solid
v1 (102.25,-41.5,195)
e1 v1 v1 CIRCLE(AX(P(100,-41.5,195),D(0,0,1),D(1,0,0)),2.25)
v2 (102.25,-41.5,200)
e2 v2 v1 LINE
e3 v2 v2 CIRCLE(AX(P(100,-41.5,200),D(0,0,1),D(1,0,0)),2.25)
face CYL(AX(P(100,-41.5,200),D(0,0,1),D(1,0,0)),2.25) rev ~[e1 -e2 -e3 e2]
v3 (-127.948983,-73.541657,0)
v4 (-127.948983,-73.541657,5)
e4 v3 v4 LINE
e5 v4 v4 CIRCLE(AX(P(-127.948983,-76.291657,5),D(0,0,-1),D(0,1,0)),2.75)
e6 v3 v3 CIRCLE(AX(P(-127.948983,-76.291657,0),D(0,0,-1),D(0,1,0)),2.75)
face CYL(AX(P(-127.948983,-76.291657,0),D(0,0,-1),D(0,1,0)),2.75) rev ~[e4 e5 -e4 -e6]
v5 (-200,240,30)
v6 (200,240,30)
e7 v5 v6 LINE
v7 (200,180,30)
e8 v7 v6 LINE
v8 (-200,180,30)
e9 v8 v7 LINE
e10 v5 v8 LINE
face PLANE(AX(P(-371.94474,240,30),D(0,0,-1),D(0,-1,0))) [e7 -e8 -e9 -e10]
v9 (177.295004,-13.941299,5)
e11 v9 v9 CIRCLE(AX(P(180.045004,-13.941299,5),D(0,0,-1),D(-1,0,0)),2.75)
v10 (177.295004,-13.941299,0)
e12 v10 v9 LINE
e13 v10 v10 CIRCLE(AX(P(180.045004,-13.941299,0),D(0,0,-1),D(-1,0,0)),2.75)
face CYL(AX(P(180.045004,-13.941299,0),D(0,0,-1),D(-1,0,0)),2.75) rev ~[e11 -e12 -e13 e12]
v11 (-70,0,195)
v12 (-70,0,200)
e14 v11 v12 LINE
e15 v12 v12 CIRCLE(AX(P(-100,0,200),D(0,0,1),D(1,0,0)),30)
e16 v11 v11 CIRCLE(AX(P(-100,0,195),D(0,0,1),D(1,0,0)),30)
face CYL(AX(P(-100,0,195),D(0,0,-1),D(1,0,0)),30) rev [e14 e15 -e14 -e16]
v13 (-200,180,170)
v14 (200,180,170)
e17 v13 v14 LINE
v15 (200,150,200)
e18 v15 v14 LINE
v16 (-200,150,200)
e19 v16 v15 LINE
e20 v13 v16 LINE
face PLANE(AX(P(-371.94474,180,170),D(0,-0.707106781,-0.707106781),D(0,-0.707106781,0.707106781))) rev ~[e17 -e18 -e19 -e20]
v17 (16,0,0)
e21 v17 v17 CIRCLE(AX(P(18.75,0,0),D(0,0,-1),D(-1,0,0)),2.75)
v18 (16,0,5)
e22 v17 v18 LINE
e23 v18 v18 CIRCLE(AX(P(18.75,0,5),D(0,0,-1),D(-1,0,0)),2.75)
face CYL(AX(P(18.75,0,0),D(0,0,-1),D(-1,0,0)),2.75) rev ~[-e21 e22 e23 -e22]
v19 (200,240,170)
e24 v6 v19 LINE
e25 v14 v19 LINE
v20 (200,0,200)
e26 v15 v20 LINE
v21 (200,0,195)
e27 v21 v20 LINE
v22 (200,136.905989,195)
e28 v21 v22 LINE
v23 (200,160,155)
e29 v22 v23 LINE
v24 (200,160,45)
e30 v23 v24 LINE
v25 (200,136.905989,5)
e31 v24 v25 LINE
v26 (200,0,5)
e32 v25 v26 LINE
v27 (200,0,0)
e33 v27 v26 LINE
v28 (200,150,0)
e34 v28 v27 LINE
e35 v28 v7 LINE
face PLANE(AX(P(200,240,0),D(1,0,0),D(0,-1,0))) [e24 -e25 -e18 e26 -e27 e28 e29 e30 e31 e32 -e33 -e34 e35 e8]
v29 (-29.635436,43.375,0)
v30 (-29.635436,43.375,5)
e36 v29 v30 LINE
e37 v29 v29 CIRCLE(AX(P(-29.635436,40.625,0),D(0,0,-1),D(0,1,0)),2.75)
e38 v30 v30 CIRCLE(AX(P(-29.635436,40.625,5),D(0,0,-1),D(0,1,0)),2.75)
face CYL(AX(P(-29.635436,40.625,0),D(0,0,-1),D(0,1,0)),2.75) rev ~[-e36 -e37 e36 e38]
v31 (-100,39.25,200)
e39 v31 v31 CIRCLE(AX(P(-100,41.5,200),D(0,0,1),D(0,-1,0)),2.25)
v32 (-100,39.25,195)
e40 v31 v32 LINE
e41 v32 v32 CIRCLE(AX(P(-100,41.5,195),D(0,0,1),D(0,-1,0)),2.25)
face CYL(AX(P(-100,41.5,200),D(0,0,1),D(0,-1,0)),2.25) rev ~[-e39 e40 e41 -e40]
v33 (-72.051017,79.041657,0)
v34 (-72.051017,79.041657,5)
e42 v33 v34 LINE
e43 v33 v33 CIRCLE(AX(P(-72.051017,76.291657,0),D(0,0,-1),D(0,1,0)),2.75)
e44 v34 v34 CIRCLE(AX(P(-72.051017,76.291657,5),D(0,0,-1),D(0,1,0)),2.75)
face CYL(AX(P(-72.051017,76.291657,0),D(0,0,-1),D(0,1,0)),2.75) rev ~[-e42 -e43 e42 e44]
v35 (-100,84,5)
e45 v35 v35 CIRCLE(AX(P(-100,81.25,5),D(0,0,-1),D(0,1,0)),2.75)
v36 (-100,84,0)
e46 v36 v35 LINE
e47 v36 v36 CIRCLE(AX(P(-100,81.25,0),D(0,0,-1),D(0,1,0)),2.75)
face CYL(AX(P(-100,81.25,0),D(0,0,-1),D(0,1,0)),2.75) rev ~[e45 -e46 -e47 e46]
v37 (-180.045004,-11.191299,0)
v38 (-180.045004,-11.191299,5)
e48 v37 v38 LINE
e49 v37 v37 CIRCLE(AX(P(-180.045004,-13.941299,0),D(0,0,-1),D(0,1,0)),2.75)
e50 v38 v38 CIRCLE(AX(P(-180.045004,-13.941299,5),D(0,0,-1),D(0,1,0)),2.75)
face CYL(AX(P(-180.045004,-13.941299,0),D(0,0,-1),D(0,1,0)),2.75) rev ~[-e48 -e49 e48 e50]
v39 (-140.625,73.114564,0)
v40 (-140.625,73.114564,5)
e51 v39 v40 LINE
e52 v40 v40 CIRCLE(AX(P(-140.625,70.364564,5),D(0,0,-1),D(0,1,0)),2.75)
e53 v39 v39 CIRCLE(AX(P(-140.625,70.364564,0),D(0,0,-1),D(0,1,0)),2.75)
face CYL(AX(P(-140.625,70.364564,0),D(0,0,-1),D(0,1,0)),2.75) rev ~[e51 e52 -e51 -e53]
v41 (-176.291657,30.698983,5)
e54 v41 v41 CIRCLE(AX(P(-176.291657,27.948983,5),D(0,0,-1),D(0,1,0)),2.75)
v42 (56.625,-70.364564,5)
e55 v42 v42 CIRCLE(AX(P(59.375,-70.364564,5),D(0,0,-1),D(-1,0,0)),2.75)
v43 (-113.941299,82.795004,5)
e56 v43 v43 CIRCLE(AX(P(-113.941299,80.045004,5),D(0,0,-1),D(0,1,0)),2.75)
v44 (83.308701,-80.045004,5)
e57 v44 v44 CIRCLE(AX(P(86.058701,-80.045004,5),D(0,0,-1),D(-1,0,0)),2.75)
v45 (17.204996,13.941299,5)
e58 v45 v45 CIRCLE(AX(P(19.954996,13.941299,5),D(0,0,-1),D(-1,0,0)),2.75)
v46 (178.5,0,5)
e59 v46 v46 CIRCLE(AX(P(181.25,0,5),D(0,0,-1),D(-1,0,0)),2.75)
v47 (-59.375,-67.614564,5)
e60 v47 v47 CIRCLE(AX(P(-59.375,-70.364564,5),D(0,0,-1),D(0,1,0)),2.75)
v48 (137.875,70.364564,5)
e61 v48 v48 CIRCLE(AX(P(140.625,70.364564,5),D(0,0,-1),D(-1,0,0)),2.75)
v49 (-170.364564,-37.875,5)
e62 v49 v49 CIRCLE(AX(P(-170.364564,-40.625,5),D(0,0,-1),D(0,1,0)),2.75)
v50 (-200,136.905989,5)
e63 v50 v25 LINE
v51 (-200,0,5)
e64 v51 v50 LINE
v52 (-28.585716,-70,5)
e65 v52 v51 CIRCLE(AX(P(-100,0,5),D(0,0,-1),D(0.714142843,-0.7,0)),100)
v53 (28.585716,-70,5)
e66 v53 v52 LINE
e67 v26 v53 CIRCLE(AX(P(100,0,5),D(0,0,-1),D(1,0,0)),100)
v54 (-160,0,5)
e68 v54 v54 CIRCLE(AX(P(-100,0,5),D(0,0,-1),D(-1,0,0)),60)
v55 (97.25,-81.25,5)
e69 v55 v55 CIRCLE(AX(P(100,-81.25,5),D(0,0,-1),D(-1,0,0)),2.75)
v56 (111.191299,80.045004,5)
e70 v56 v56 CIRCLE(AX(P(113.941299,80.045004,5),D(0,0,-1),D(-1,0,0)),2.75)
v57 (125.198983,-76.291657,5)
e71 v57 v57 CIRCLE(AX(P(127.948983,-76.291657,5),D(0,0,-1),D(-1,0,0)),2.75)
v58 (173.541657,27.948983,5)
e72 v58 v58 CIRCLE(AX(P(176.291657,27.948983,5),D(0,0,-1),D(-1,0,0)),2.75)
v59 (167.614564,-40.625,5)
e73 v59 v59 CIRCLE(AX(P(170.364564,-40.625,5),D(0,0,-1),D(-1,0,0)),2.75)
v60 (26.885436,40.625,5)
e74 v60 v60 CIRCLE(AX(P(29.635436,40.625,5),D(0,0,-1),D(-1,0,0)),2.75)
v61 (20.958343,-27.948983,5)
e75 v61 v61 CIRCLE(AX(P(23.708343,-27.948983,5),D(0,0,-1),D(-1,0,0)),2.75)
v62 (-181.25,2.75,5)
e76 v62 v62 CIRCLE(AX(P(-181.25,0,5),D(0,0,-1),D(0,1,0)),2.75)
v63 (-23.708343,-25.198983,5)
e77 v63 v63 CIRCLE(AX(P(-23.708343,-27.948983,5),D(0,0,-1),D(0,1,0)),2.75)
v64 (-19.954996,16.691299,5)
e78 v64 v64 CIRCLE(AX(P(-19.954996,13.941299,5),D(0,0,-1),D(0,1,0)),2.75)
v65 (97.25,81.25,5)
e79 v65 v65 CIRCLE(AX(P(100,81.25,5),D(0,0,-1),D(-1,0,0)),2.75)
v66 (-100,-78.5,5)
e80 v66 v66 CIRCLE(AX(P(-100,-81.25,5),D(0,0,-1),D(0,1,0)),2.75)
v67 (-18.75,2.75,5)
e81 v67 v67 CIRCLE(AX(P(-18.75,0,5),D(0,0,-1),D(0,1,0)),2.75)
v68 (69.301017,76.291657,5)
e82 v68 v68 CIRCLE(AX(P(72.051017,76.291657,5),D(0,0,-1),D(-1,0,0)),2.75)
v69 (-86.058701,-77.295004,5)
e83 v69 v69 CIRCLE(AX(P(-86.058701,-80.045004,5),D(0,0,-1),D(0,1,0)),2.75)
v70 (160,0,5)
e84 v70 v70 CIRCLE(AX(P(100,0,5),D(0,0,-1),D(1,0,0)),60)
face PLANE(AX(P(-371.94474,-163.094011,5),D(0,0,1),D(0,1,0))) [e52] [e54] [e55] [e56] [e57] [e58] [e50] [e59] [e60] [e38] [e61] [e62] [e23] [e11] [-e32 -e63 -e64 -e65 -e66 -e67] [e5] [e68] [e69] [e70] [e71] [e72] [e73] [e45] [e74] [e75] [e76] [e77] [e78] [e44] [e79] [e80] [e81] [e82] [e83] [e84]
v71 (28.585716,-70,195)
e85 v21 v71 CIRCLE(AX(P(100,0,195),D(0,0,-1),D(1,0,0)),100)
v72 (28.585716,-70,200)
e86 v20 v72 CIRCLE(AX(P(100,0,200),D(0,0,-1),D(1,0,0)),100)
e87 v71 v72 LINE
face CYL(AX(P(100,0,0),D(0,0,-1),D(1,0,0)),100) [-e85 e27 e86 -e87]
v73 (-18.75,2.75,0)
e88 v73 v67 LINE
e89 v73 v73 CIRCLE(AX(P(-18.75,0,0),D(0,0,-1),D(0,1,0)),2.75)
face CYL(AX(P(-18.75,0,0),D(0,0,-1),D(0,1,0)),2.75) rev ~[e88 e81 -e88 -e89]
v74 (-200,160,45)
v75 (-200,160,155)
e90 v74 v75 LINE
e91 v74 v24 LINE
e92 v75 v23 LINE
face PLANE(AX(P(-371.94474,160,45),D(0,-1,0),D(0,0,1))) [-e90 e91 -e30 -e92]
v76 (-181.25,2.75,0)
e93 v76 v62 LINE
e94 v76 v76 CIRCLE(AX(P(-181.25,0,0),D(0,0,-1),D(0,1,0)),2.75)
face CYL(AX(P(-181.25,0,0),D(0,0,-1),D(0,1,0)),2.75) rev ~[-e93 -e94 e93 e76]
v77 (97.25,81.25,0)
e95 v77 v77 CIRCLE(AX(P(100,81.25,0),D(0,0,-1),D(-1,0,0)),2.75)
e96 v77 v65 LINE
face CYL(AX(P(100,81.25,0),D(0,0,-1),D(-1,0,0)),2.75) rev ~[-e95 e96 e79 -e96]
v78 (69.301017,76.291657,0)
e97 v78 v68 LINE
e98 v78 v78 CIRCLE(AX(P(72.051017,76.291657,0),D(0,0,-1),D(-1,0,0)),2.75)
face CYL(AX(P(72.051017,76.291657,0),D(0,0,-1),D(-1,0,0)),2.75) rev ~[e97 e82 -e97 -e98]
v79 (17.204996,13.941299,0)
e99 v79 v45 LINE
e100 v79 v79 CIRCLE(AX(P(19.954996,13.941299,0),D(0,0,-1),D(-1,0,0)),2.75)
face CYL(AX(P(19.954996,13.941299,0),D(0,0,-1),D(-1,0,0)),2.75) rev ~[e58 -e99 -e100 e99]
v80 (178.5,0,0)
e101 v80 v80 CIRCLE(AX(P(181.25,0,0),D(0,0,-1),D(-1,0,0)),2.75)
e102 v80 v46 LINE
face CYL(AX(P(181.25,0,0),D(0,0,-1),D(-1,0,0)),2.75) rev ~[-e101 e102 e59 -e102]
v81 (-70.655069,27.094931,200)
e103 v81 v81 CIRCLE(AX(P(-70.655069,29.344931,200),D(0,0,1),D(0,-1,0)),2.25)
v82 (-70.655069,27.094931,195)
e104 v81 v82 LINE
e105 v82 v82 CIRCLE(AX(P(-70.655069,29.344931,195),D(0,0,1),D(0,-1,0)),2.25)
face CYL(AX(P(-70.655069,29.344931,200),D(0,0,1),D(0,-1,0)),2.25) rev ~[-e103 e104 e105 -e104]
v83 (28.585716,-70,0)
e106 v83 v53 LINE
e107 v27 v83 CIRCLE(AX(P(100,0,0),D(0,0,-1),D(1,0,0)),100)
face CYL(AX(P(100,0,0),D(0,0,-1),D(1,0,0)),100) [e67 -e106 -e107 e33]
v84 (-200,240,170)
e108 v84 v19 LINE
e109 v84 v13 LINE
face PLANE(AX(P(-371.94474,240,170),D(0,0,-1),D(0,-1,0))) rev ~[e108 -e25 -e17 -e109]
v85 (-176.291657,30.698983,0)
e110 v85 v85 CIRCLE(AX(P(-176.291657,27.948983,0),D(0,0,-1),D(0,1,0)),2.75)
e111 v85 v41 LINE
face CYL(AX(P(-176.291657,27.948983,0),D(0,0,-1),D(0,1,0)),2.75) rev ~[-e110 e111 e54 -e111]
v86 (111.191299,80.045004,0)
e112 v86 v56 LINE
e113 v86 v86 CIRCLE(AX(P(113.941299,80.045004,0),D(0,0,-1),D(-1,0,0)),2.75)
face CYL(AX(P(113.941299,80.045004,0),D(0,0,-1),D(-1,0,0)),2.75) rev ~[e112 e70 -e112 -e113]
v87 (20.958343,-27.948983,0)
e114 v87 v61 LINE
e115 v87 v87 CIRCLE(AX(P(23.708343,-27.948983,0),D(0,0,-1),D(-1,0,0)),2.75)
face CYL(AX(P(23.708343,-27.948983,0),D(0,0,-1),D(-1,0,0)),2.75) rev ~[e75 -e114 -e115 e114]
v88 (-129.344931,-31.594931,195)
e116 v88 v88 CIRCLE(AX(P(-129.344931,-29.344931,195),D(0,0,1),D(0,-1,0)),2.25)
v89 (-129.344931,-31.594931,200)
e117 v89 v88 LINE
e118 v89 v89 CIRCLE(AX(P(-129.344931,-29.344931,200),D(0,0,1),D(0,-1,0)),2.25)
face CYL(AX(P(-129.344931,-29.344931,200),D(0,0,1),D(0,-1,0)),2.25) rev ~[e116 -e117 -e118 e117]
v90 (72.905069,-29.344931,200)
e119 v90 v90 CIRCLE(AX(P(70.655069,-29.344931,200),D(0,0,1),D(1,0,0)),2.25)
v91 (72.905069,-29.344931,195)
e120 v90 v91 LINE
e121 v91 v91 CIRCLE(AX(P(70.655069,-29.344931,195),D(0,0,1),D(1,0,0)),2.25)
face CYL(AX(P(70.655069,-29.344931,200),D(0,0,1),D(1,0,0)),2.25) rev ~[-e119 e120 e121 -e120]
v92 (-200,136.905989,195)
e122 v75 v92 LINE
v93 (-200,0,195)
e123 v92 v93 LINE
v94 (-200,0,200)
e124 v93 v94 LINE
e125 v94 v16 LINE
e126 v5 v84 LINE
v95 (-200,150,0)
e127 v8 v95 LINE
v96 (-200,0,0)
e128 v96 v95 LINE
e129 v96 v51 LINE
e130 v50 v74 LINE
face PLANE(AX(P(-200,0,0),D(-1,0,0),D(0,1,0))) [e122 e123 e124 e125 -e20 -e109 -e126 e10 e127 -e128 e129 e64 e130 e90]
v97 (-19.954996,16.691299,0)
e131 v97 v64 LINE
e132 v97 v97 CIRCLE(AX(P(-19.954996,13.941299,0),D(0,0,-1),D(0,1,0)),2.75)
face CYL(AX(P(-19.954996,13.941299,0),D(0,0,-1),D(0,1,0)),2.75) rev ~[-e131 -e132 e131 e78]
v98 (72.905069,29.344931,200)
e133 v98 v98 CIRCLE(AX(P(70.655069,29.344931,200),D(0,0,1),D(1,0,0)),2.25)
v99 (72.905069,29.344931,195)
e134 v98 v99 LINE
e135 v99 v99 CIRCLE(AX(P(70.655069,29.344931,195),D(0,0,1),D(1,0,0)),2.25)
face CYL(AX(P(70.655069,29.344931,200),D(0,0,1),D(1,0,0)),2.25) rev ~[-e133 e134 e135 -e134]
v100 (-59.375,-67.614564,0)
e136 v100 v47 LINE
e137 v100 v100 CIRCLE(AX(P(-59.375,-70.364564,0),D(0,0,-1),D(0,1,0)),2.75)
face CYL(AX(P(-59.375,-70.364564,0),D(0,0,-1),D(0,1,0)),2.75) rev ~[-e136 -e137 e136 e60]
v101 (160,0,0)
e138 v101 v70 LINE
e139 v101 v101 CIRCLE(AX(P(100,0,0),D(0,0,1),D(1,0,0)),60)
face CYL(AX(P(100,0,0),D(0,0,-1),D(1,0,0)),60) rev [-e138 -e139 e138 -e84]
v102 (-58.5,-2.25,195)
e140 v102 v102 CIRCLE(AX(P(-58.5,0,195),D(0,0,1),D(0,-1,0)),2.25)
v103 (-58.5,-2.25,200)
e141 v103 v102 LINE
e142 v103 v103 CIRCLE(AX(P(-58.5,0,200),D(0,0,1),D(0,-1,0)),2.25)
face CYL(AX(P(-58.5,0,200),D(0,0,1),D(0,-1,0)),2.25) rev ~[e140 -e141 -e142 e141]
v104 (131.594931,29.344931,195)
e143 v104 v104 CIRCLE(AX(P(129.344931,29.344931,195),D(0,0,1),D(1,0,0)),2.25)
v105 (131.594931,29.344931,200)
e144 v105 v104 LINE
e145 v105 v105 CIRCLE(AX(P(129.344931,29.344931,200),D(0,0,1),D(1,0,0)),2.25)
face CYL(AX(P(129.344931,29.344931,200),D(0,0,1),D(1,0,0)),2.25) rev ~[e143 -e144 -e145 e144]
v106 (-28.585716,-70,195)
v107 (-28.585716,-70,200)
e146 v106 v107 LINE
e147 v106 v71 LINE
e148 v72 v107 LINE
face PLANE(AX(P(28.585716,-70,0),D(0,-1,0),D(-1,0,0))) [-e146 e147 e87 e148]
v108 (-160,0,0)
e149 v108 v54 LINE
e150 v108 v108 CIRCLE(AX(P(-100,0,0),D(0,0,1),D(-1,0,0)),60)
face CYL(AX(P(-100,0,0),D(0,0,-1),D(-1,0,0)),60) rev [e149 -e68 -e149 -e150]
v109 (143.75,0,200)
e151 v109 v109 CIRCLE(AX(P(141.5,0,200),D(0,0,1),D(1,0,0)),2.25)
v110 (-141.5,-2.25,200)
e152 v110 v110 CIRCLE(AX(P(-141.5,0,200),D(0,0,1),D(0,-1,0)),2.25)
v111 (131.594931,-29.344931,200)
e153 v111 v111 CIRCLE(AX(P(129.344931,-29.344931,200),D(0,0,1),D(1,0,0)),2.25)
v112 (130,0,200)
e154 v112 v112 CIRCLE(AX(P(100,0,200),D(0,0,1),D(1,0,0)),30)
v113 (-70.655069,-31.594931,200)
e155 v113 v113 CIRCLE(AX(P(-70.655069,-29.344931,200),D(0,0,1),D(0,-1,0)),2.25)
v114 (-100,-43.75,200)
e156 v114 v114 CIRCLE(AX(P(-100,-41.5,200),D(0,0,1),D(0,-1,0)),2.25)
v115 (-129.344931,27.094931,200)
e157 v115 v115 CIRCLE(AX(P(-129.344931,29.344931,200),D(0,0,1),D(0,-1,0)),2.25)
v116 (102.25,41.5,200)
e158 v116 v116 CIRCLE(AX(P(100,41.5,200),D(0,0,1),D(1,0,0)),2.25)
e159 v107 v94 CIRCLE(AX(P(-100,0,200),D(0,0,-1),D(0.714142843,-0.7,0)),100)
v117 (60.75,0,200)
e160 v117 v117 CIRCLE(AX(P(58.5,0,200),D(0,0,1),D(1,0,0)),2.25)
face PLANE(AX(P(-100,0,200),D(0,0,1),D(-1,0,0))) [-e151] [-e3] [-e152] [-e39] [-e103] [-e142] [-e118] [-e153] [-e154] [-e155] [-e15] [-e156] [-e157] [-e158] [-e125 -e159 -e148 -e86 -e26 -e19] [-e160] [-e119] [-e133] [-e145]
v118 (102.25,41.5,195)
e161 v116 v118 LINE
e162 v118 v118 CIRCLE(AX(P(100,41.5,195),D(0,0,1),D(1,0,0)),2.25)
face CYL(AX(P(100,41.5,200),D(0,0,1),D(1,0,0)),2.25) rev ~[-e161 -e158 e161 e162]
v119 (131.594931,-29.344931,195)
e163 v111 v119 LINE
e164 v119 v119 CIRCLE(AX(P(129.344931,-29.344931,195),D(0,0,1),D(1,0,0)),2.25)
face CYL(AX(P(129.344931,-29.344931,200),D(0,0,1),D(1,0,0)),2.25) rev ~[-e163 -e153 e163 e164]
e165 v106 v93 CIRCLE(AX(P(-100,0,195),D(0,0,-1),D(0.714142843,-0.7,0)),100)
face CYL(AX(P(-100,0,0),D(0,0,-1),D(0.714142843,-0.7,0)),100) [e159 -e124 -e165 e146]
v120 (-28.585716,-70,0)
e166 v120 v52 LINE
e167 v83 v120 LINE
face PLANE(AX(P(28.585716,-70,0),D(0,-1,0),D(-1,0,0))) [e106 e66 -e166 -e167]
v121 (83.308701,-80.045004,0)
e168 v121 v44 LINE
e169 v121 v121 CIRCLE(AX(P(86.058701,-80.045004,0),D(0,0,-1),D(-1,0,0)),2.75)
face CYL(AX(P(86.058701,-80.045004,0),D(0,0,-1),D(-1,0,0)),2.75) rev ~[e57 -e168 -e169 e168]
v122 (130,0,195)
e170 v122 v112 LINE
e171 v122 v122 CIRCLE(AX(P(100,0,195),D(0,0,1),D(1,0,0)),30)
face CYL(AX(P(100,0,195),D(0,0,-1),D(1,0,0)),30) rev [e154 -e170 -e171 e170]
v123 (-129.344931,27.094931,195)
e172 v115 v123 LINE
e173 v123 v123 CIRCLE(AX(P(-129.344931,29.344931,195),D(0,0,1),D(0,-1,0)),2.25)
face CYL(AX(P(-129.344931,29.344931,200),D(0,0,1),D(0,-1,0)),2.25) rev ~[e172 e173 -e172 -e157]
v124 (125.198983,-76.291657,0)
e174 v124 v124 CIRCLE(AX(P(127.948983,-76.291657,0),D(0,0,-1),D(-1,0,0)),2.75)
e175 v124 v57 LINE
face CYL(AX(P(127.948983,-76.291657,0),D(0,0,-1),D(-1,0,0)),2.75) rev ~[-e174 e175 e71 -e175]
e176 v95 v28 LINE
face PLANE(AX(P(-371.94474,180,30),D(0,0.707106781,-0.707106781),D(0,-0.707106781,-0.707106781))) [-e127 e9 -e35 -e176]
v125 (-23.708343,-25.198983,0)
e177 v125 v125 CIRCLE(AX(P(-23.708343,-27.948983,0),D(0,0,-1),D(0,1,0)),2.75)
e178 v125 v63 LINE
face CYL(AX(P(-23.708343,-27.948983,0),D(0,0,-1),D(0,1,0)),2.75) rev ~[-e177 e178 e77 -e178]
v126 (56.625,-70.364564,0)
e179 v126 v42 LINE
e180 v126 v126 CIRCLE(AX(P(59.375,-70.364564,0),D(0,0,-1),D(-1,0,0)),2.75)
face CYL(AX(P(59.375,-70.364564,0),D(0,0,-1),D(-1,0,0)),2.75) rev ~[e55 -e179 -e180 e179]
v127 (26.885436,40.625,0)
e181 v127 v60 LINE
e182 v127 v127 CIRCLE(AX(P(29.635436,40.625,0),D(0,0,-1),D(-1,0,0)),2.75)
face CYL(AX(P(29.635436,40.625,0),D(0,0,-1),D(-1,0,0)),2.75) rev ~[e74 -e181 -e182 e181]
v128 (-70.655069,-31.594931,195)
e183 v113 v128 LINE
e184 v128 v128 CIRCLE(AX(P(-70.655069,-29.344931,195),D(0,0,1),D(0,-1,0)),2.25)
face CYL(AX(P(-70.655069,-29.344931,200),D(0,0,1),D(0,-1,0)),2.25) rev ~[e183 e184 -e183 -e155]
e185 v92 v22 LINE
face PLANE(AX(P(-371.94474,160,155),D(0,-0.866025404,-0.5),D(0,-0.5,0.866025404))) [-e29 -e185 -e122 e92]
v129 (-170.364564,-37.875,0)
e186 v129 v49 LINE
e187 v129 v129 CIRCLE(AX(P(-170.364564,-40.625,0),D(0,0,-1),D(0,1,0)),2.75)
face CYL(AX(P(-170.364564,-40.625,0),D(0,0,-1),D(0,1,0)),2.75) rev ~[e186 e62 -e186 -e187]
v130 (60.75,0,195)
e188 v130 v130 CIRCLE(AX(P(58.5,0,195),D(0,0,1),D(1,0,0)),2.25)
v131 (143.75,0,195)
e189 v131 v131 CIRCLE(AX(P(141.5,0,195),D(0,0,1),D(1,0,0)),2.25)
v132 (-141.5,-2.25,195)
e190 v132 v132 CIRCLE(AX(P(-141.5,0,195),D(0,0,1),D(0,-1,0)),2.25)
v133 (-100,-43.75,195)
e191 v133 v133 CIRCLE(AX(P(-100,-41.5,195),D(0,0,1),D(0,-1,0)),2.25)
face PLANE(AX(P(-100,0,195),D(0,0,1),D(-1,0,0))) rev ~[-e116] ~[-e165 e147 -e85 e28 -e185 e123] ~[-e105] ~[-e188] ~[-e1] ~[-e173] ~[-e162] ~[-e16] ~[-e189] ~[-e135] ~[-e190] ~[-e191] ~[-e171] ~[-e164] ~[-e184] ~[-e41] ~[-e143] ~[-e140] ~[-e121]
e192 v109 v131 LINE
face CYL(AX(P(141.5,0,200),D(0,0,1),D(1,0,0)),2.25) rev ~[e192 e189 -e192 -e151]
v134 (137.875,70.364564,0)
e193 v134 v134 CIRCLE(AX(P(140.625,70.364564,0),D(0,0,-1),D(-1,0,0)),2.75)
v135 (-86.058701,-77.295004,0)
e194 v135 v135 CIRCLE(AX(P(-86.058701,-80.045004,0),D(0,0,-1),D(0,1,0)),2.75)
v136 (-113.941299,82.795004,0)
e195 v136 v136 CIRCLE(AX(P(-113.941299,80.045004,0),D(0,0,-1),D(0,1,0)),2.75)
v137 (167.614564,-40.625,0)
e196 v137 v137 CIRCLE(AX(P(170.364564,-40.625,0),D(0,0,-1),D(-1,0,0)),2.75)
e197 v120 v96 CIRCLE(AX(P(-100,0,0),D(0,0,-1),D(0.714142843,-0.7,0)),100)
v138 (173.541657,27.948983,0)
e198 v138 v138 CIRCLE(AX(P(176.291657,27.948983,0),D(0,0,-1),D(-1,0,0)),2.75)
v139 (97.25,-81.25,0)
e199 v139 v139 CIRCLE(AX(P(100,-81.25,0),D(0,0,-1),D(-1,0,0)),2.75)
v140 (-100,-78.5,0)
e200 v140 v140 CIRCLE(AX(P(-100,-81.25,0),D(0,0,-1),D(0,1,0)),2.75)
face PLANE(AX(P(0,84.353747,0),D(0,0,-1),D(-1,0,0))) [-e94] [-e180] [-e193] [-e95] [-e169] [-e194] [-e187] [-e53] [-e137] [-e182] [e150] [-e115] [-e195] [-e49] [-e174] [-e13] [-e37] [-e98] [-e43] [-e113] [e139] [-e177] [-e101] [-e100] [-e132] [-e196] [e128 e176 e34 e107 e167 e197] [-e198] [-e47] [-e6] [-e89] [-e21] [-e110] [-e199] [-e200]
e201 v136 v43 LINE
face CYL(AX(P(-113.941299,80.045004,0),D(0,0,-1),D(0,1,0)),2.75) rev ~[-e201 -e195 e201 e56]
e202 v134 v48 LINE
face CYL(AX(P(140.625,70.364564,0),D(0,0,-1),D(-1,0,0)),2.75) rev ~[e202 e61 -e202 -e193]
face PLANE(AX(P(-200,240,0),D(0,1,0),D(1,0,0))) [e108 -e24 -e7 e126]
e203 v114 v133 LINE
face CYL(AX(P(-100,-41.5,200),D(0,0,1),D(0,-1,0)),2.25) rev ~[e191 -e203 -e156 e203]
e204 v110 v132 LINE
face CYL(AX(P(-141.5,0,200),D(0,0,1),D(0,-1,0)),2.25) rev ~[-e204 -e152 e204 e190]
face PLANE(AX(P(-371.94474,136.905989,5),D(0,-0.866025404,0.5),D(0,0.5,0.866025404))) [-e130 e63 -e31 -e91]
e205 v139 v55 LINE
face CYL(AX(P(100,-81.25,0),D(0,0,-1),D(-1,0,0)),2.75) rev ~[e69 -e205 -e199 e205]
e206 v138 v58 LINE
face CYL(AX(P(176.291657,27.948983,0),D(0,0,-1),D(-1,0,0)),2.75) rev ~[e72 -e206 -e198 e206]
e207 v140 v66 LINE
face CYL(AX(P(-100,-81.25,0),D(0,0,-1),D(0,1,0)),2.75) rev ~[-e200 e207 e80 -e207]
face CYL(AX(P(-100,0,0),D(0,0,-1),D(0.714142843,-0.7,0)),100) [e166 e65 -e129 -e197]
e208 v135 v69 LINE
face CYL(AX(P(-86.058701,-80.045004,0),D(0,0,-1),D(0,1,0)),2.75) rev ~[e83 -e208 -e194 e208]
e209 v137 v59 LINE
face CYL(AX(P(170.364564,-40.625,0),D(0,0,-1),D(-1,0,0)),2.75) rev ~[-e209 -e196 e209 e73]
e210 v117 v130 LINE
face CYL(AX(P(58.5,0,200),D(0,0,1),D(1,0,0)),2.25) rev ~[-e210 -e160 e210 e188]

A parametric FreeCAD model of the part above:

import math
import FreeCAD as App
import Part
import Sketcher
Q = App.Units.Quantity

doc = App.newDocument("Part")
params = doc.addObject("Spreadsheet::Sheet", "Params")
for row, (alias, value) in enumerate([
    ("sketch1_diameter", "120 mm"),
    ("sketch1_radius", "100 mm"),
    ("sketch1_width", "400 mm"),
    ("sketch1_height", "240 mm"),
    ("pad1_length", "200 mm"),
    ("sketch2_width", "300 mm"),
    ("sketch2_height", "190 mm"),
    ("sketch2_height2", "110 mm"),
    ("sketch3_width", "60 mm"),
    ("sketch3_width2", "90 mm"),
    ("sketch4_diameter", "5.5 mm"),
    ("pocket3_length", "32.5 mm"),
    ("sketch5_diameter", "120 mm"),
    ("sketch5_diameter2", "60 mm"),
    ("pad2_length", "5 mm"),
    ("sketch6_diameter", "4.5 mm"),
    ("pocket4_length", "5 mm"),
], start=1):
    params.set(f"A{row}", alias)
    params.set(f"B{row}", "=" + value)
    params.setAlias(f"B{row}", alias)

body = doc.addObject("PartDesign::Body", "Body")

# Sketch on XY plane
sketch1 = body.newObject("Sketcher::SketchObject", "Sketch")
sketch1.AttachmentSupport = (doc.getObject("XY_Plane"), [""])
sketch1.MapMode = "FlatFace"
sketch1.addGeometry([
    Part.ArcOfCircle(Part.Circle(App.Vector(100, 0, 0), App.Vector(0, 0, 1), 100), math.radians(-135.572996), math.radians(0)),  # 0
    Part.LineSegment(App.Vector(200, 0, 0), App.Vector(200, 240, 0)),  # 1
    Part.LineSegment(App.Vector(200, 240, 0), App.Vector(-200, 240, 0)),  # 2
    Part.LineSegment(App.Vector(-200, 240, 0), App.Vector(-200, 0, 0)),  # 3
    Part.ArcOfCircle(Part.Circle(App.Vector(-100, 0, 0), App.Vector(0, 0, 1), 100), math.radians(180), math.radians(315.572996)),  # 4
    Part.LineSegment(App.Vector(-28.585716, -70, 0), App.Vector(28.585716, -70, 0)),  # 5
    Part.Circle(App.Vector(100, 0, 0), App.Vector(0, 0, 1), 60),  # 6
    Part.Circle(App.Vector(-100, 0, 0), App.Vector(0, 0, 1), 60),  # 7
], False)
sketch1.addConstraint([
    Sketcher.Constraint("Tangent", 0, 2, 1, 1),
    Sketcher.Constraint("Coincident", 1, 2, 2, 1),
    Sketcher.Constraint("Coincident", 2, 2, 3, 1),
    Sketcher.Constraint("Tangent", 3, 2, 4, 1),
    Sketcher.Constraint("Coincident", 4, 2, 5, 1),
    Sketcher.Constraint("Coincident", 5, 2, 0, 1),
    Sketcher.Constraint("Vertical", 1),
    Sketcher.Constraint("Horizontal", 2),
    Sketcher.Constraint("Vertical", 3),
    Sketcher.Constraint("Horizontal", 5),
    Sketcher.Constraint("Coincident", 6, 3, 0, 3),
    Sketcher.Constraint("Coincident", 7, 3, 4, 3),
    Sketcher.Constraint("Equal", 0, 4),
    Sketcher.Constraint("Equal", 6, 7),
    Sketcher.Constraint("Symmetric", 0, 3, 4, 3, -1, 1),
    Sketcher.Constraint("PointOnObject", 0, 3, -1),
    Sketcher.Constraint("Diameter", 6, 120.0),
    Sketcher.Constraint("Radius", 0, 100.0),
    Sketcher.Constraint("DistanceX", 2, 2, 2, 1, 400.0),
    Sketcher.Constraint("DistanceY", 1, 1, 1, 2, 240.0),
    Sketcher.Constraint("DistanceY", 4, 2, -1, 1, 70.0),
])
sketch1.setExpression("Constraints[16]", "Params.sketch1_diameter")
sketch1.setExpression("Constraints[17]", "Params.sketch1_radius")
sketch1.setExpression("Constraints[18]", "Params.sketch1_width")
sketch1.setExpression("Constraints[19]", "Params.sketch1_height")
pad1 = body.newObject("PartDesign::Pad", "Pad")
pad1.Profile = sketch1
pad1.setExpression("Length", "Params.pad1_length")

# Sketch on YZ plane
sketch2 = body.newObject("Sketcher::SketchObject", "Sketch001")
sketch2.AttachmentSupport = (doc.getObject("YZ_Plane"), [""])
sketch2.MapMode = "FlatFace"
sketch2.addGeometry([
    Part.LineSegment(App.Vector(136.905989, 195, 0), App.Vector(-163.094011, 195, 0)),  # 0
    Part.LineSegment(App.Vector(-163.094011, 195, 0), App.Vector(-163.094011, 5, 0)),  # 1
    Part.LineSegment(App.Vector(-163.094011, 5, 0), App.Vector(136.905989, 5, 0)),  # 2
    Part.LineSegment(App.Vector(136.905989, 5, 0), App.Vector(160, 45, 0)),  # 3
    Part.LineSegment(App.Vector(160, 45, 0), App.Vector(160, 155, 0)),  # 4
    Part.LineSegment(App.Vector(160, 155, 0), App.Vector(136.905989, 195, 0)),  # 5
], False)
sketch2.addConstraint([
    Sketcher.Constraint("Coincident", 0, 2, 1, 1),
    Sketcher.Constraint("Coincident", 1, 2, 2, 1),
    Sketcher.Constraint("Coincident", 2, 2, 3, 1),
    Sketcher.Constraint("Coincident", 3, 2, 4, 1),
    Sketcher.Constraint("Coincident", 4, 2, 5, 1),
    Sketcher.Constraint("Coincident", 5, 2, 0, 1),
    Sketcher.Constraint("Horizontal", 0),
    Sketcher.Constraint("Vertical", 1),
    Sketcher.Constraint("Horizontal", 2),
    Sketcher.Constraint("Vertical", 4),
    Sketcher.Constraint("Vertical", 2, 2, 5, 2),
    Sketcher.Constraint("Equal", 3, 5),
    Sketcher.Constraint("DistanceX", 0, 2, 0, 1, 300.0),
    Sketcher.Constraint("DistanceY", 1, 2, 1, 1, 190.0),
    Sketcher.Constraint("DistanceY", 4, 1, 4, 2, 110.0),
    Sketcher.Constraint("Angle", 3, Q("60 deg")),
    Sketcher.Constraint("DistanceY", -1, 1, 0, 2, 195.0),
    Sketcher.Constraint("DistanceX", -1, 1, 3, 2, 160.0),
])
sketch2.setExpression("Constraints[12]", "Params.sketch2_width")
sketch2.setExpression("Constraints[13]", "Params.sketch2_height")
sketch2.setExpression("Constraints[14]", "Params.sketch2_height2")
pocket1 = body.newObject("PartDesign::Pocket", "Pocket")
pocket1.Profile = sketch2
pocket1.Type = "ThroughAll"
pocket1.Midplane = True

# Sketch on YZ plane
sketch3 = body.newObject("Sketcher::SketchObject", "Sketch002")
sketch3.AttachmentSupport = (doc.getObject("YZ_Plane"), [""])
sketch3.MapMode = "FlatFace"
sketch3.addGeometry([
    Part.LineSegment(App.Vector(180, 170, 0), App.Vector(240, 170, 0)),  # 0
    Part.LineSegment(App.Vector(240, 170, 0), App.Vector(240, 200, 0)),  # 1
    Part.LineSegment(App.Vector(240, 200, 0), App.Vector(150, 200, 0)),  # 2
    Part.LineSegment(App.Vector(150, 200, 0), App.Vector(180, 170, 0)),  # 3
    Part.LineSegment(App.Vector(240, 0, 0), App.Vector(240, 30, 0)),  # 4
    Part.LineSegment(App.Vector(240, 30, 0), App.Vector(180, 30, 0)),  # 5
    Part.LineSegment(App.Vector(180, 30, 0), App.Vector(150, 0, 0)),  # 6
    Part.LineSegment(App.Vector(150, 0, 0), App.Vector(240, 0, 0)),  # 7
], False)
sketch3.addConstraint([
    Sketcher.Constraint("Coincident", 0, 2, 1, 1),
    Sketcher.Constraint("Coincident", 1, 2, 2, 1),
    Sketcher.Constraint("Coincident", 2, 2, 3, 1),
    Sketcher.Constraint("Coincident", 3, 2, 0, 1),
    Sketcher.Constraint("Coincident", 4, 2, 5, 1),
    Sketcher.Constraint("Coincident", 5, 2, 6, 1),
    Sketcher.Constraint("Coincident", 6, 2, 7, 1),
    Sketcher.Constraint("Coincident", 7, 2, 4, 1),
    Sketcher.Constraint("Horizontal", 0),
    Sketcher.Constraint("Vertical", 1),
    Sketcher.Constraint("Horizontal", 2),
    Sketcher.Constraint("Vertical", 4),
    Sketcher.Constraint("Horizontal", 5),
    Sketcher.Constraint("Horizontal", 7),
    Sketcher.Constraint("PointOnObject", 6, 2, -1),
    Sketcher.Constraint("Perpendicular", 3, 6),
    Sketcher.Constraint("Vertical", 1, 2, 4, 2),
    Sketcher.Constraint("Vertical", 3, 2, 5, 2),
    Sketcher.Constraint("Vertical", 2, 2, 6, 2),
    Sketcher.Constraint("Equal", 1, 4),
    Sketcher.Constraint("DistanceX", 0, 1, 0, 2, 60.0),
    Sketcher.Constraint("DistanceX", 2, 2, 2, 1, 90.0),
    Sketcher.Constraint("DistanceX", -1, 1, 0, 2, 240.0),
    Sketcher.Constraint("DistanceY", -1, 1, 0, 2, 170.0),
])
sketch3.setExpression("Constraints[20]", "Params.sketch3_width")
sketch3.setExpression("Constraints[21]", "Params.sketch3_width2")
pocket2 = body.newObject("PartDesign::Pocket", "Pocket001")
pocket2.Profile = sketch3
pocket2.Type = "ThroughAll"
pocket2.Midplane = True

# Sketch on XY plane
sketch4 = body.newObject("Sketcher::SketchObject", "Sketch003")
sketch4.AttachmentSupport = (doc.getObject("XY_Plane"), [""])
sketch4.MapMode = "FlatFace"
sketch4.addGeometry([
    Part.Circle(App.Vector(72.051017, 76.291657, 0), App.Vector(0, 0, 1), 2.75),  # 0
    Part.Circle(App.Vector(100, 81.25, 0), App.Vector(0, 0, 1), 2.75),  # 1
    Part.Circle(App.Vector(113.941299, 80.045004, 0), App.Vector(0, 0, 1), 2.75),  # 2
    Part.Circle(App.Vector(140.625, 70.364564, 0), App.Vector(0, 0, 1), 2.75),  # 3
    Part.Circle(App.Vector(23.708343, -27.948983, 0), App.Vector(0, 0, 1), 2.75),  # 4
    Part.Circle(App.Vector(18.75, 0, 0), App.Vector(0, 0, 1), 2.75),  # 5
    Part.Circle(App.Vector(19.954996, 13.941299, 0), App.Vector(0, 0, 1), 2.75),  # 6
    Part.Circle(App.Vector(29.635436, 40.625, 0), App.Vector(0, 0, 1), 2.75),  # 7
    Part.Circle(App.Vector(127.948983, -76.291657, 0), App.Vector(0, 0, 1), 2.75),  # 8
    Part.Circle(App.Vector(100, -81.25, 0), App.Vector(0, 0, 1), 2.75),  # 9
    Part.Circle(App.Vector(86.058701, -80.045004, 0), App.Vector(0, 0, 1), 2.75),  # 10
    Part.Circle(App.Vector(59.375, -70.364564, 0), App.Vector(0, 0, 1), 2.75),  # 11
    Part.Circle(App.Vector(176.291657, 27.948983, 0), App.Vector(0, 0, 1), 2.75),  # 12
    Part.Circle(App.Vector(181.25, 0, 0), App.Vector(0, 0, 1), 2.75),  # 13
    Part.Circle(App.Vector(180.045004, -13.941299, 0), App.Vector(0, 0, 1), 2.75),  # 14
    Part.Circle(App.Vector(170.364564, -40.625, 0), App.Vector(0, 0, 1), 2.75),  # 15
    Part.Circle(App.Vector(-170.364564, -40.625, 0), App.Vector(0, 0, 1), 2.75),  # 16
    Part.Circle(App.Vector(-180.045004, -13.941299, 0), App.Vector(0, 0, 1), 2.75),  # 17
    Part.Circle(App.Vector(-181.25, 0, 0), App.Vector(0, 0, 1), 2.75),  # 18
    Part.Circle(App.Vector(-176.291657, 27.948983, 0), App.Vector(0, 0, 1), 2.75),  # 19
    Part.Circle(App.Vector(-59.375, -70.364564, 0), App.Vector(0, 0, 1), 2.75),  # 20
    Part.Circle(App.Vector(-86.058701, -80.045004, 0), App.Vector(0, 0, 1), 2.75),  # 21
    Part.Circle(App.Vector(-100, -81.25, 0), App.Vector(0, 0, 1), 2.75),  # 22
    Part.Circle(App.Vector(-127.948983, -76.291657, 0), App.Vector(0, 0, 1), 2.75),  # 23
    Part.Circle(App.Vector(-29.635436, 40.625, 0), App.Vector(0, 0, 1), 2.75),  # 24
    Part.Circle(App.Vector(-19.954996, 13.941299, 0), App.Vector(0, 0, 1), 2.75),  # 25
    Part.Circle(App.Vector(-18.75, 0, 0), App.Vector(0, 0, 1), 2.75),  # 26
    Part.Circle(App.Vector(-23.708343, -27.948983, 0), App.Vector(0, 0, 1), 2.75),  # 27
    Part.Circle(App.Vector(-140.625, 70.364564, 0), App.Vector(0, 0, 1), 2.75),  # 28
    Part.Circle(App.Vector(-113.941299, 80.045004, 0), App.Vector(0, 0, 1), 2.75),  # 29
    Part.Circle(App.Vector(-100, 81.25, 0), App.Vector(0, 0, 1), 2.75),  # 30
    Part.Circle(App.Vector(-72.051017, 76.291657, 0), App.Vector(0, 0, 1), 2.75),  # 31
], False)
sketch4.addConstraint([
    Sketcher.Constraint("Equal", 0, 1),
    Sketcher.Constraint("Equal", 1, 2),
    Sketcher.Constraint("Equal", 2, 3),
    Sketcher.Constraint("Equal", 3, 4),
    Sketcher.Constraint("Equal", 4, 5),
    Sketcher.Constraint("Equal", 5, 6),
    Sketcher.Constraint("Equal", 6, 7),
    Sketcher.Constraint("Equal", 7, 8),
    Sketcher.Constraint("Equal", 8, 9),
    Sketcher.Constraint("Equal", 9, 10),
    Sketcher.Constraint("Equal", 10, 11),
    Sketcher.Constraint("Equal", 11, 12),
    Sketcher.Constraint("Equal", 12, 13),
    Sketcher.Constraint("Equal", 13, 14),
    Sketcher.Constraint("Equal", 14, 15),
    Sketcher.Constraint("Equal", 15, 16),
    Sketcher.Constraint("Equal", 16, 17),
    Sketcher.Constraint("Equal", 17, 18),
    Sketcher.Constraint("Equal", 18, 19),
    Sketcher.Constraint("Equal", 19, 20),
    Sketcher.Constraint("Equal", 20, 21),
    Sketcher.Constraint("Equal", 21, 22),
    Sketcher.Constraint("Equal", 22, 23),
    Sketcher.Constraint("Equal", 23, 24),
    Sketcher.Constraint("Equal", 24, 25),
    Sketcher.Constraint("Equal", 25, 26),
    Sketcher.Constraint("Equal", 26, 27),
    Sketcher.Constraint("Equal", 27, 28),
    Sketcher.Constraint("Equal", 28, 29),
    Sketcher.Constraint("Equal", 29, 30),
    Sketcher.Constraint("Equal", 30, 31),
    Sketcher.Constraint("Symmetric", 13, 3, 18, 3, -1, 1),
    Sketcher.Constraint("Symmetric", 1, 3, 22, 3, -1, 1),
    Sketcher.Constraint("Symmetric", 5, 3, 26, 3, -1, 1),
    Sketcher.Constraint("Symmetric", 9, 3, 30, 3, -1, 1),
    Sketcher.Constraint("Symmetric", 15, 3, 16, 3, -2),
    Sketcher.Constraint("Symmetric", 14, 3, 17, 3, -2),
    Sketcher.Constraint("Symmetric", 12, 3, 19, 3, -2),
    Sketcher.Constraint("Symmetric", 11, 3, 20, 3, -2),
    Sketcher.Constraint("Symmetric", 10, 3, 21, 3, -2),
    Sketcher.Constraint("Symmetric", 9, 3, 22, 3, -2),
    Sketcher.Constraint("Symmetric", 8, 3, 23, 3, -2),
    Sketcher.Constraint("Symmetric", 7, 3, 24, 3, -2),
    Sketcher.Constraint("Symmetric", 6, 3, 25, 3, -2),
    Sketcher.Constraint("Symmetric", 4, 3, 27, 3, -2),
    Sketcher.Constraint("Symmetric", 3, 3, 28, 3, -2),
    Sketcher.Constraint("Symmetric", 2, 3, 29, 3, -2),
    Sketcher.Constraint("Symmetric", 0, 3, 31, 3, -2),
    Sketcher.Constraint("PointOnObject", 5, 3, -1),
    Sketcher.Constraint("PointOnObject", 13, 3, -1),
    Sketcher.Constraint("Diameter", 0, 5.5),
    Sketcher.Constraint("DistanceX", -1, 1, 1, 3, 100.0),
    Sketcher.Constraint("DistanceX", 16, 3, 7, 3, 200.0),
    Sketcher.Constraint("DistanceX", 17, 3, 6, 3, 200.0),
    Sketcher.Constraint("DistanceX", 18, 3, 5, 3, 200.0),
    Sketcher.Constraint("DistanceX", 26, 3, 5, 3, 37.5),
    Sketcher.Constraint("DistanceY", -1, 1, 1, 3, 81.25),
    Sketcher.Constraint("DistanceY", 16, 3, 7, 3, 81.25),
    Sketcher.Constraint("DistanceX", 20, 3, 11, 3, 118.75),
    Sketcher.Constraint("DistanceX", -1, 1, 3, 3, 140.625),
    Sketcher.Constraint("DistanceY", -1, 1, 7, 3, 40.625),
    Sketcher.Constraint("DistanceX", -1, 1, 2, 3, 113.941299),
    Sketcher.Constraint("DistanceY", -1, 1, 6, 3, 13.941299),
    Sketcher.Constraint("DistanceX", -1, 1, 10, 3, 86.058701),
    Sketcher.Constraint("DistanceY", 14, 3, -1, 1, 13.941299),
    Sketcher.Constraint("DistanceX", 0, 3, 2, 3, 41.890282),
    Sketcher.Constraint("DistanceY", 3, 3, 2, 3, 9.68044),
    Sketcher.Constraint("DistanceY", 4, 3, 0, 3, 104.240639),
    Sketcher.Constraint("DistanceY", 4, 3, 6, 3, 41.890282),
    Sketcher.Constraint("DistanceX", 6, 3, 0, 3, 52.096021),
    Sketcher.Constraint("DistanceX", 6, 3, 7, 3, 9.68044),
    Sketcher.Constraint("DistanceX", 4, 3, 8, 3, 104.240639),
    Sketcher.Constraint("DistanceY", 8, 3, 3, 3, 146.656221),
    Sketcher.Constraint("DistanceX", 10, 3, 8, 3, 41.890282),
    Sketcher.Constraint("DistanceY", 10, 3, 4, 3, 52.096021),
    Sketcher.Constraint("DistanceY", 10, 3, 11, 3, 9.68044),
    Sketcher.Constraint("DistanceY", 12, 3, 3, 3, 42.415581),
    Sketcher.Constraint("DistanceX", 0, 3, 12, 3, 104.240639),
    Sketcher.Constraint("DistanceY", 14, 3, 12, 3, 41.890282),
])
sketch4.setExpression("Constraints[50]", "Params.sketch4_diameter")
pocket3 = body.newObject("PartDesign::Pocket", "Pocket002")
pocket3.Profile = sketch4
pocket3.setExpression("Length", "Params.pocket3_length")
pocket3.Reversed = True

# Sketch on XY plane
sketch5 = body.newObject("Sketcher::SketchObject", "Sketch004")
sketch5.AttachmentSupport = (doc.getObject("XY_Plane"), [""])
sketch5.MapMode = "FlatFace"
sketch5.AttachmentOffset = App.Placement(App.Vector(0, 0, 195), App.Rotation())
sketch5.addGeometry([
    Part.Circle(App.Vector(-100, 0, 0), App.Vector(0, 0, 1), 60),
    Part.Circle(App.Vector(-100, 0, 0), App.Vector(0, 0, 1), 30),
    Part.Circle(App.Vector(100, 0, 0), App.Vector(0, 0, 1), 60),
    Part.Circle(App.Vector(100, 0, 0), App.Vector(0, 0, 1), 30),
], False)
sketch5.addConstraint([
    Sketcher.Constraint("Coincident", 1, 3, 0, 3),
    Sketcher.Constraint("Coincident", 3, 3, 2, 3),
    Sketcher.Constraint("Equal", 0, 2),
    Sketcher.Constraint("Equal", 1, 3),
    Sketcher.Constraint("Symmetric", 0, 3, 2, 3, -1, 1),
    Sketcher.Constraint("PointOnObject", 0, 3, -1),
    Sketcher.Constraint("Diameter", 0, 120.0),
    Sketcher.Constraint("Diameter", 1, 60.0),
    Sketcher.Constraint("DistanceX", 0, 3, -1, 1, 100.0),
])
sketch5.setExpression("Constraints[6]", "Params.sketch5_diameter")
sketch5.setExpression("Constraints[7]", "Params.sketch5_diameter2")
pad2 = body.newObject("PartDesign::Pad", "Pad001")
pad2.Profile = sketch5
pad2.setExpression("Length", "Params.pad2_length")

# Sketch on XY plane
sketch6 = body.newObject("Sketcher::SketchObject", "Sketch005")
sketch6.AttachmentSupport = (doc.getObject("XY_Plane"), [""])
sketch6.MapMode = "FlatFace"
sketch6.AttachmentOffset = App.Placement(App.Vector(0, 0, 200), App.Rotation())
sketch6.addGeometry([
    Part.Circle(App.Vector(100, 41.5, 0), App.Vector(0, 0, 1), 2.25),  # 0
    Part.Circle(App.Vector(129.344931, 29.344931, 0), App.Vector(0, 0, 1), 2.25),  # 1
    Part.Circle(App.Vector(141.5, 0, 0), App.Vector(0, 0, 1), 2.25),  # 2
    Part.Circle(App.Vector(129.344931, -29.344931, 0), App.Vector(0, 0, 1), 2.25),  # 3
    Part.Circle(App.Vector(100, -41.5, 0), App.Vector(0, 0, 1), 2.25),  # 4
    Part.Circle(App.Vector(70.655069, -29.344931, 0), App.Vector(0, 0, 1), 2.25),  # 5
    Part.Circle(App.Vector(58.5, 0, 0), App.Vector(0, 0, 1), 2.25),  # 6
    Part.Circle(App.Vector(70.655069, 29.344931, 0), App.Vector(0, 0, 1), 2.25),  # 7
    Part.Circle(App.Vector(-70.655069, 29.344931, 0), App.Vector(0, 0, 1), 2.25),  # 8
    Part.Circle(App.Vector(-58.5, 0, 0), App.Vector(0, 0, 1), 2.25),  # 9
    Part.Circle(App.Vector(-70.655069, -29.344931, 0), App.Vector(0, 0, 1), 2.25),  # 10
    Part.Circle(App.Vector(-100, -41.5, 0), App.Vector(0, 0, 1), 2.25),  # 11
    Part.Circle(App.Vector(-129.344931, -29.344931, 0), App.Vector(0, 0, 1), 2.25),  # 12
    Part.Circle(App.Vector(-141.5, 0, 0), App.Vector(0, 0, 1), 2.25),  # 13
    Part.Circle(App.Vector(-129.344931, 29.344931, 0), App.Vector(0, 0, 1), 2.25),  # 14
    Part.Circle(App.Vector(-100, 41.5, 0), App.Vector(0, 0, 1), 2.25),  # 15
], False)
sketch6.addConstraint([
    Sketcher.Constraint("Equal", 0, 1),
    Sketcher.Constraint("Equal", 1, 2),
    Sketcher.Constraint("Equal", 2, 3),
    Sketcher.Constraint("Equal", 3, 4),
    Sketcher.Constraint("Equal", 4, 5),
    Sketcher.Constraint("Equal", 5, 6),
    Sketcher.Constraint("Equal", 6, 7),
    Sketcher.Constraint("Equal", 7, 8),
    Sketcher.Constraint("Equal", 8, 9),
    Sketcher.Constraint("Equal", 9, 10),
    Sketcher.Constraint("Equal", 10, 11),
    Sketcher.Constraint("Equal", 11, 12),
    Sketcher.Constraint("Equal", 12, 13),
    Sketcher.Constraint("Equal", 13, 14),
    Sketcher.Constraint("Equal", 14, 15),
    Sketcher.Constraint("Symmetric", 5, 3, 8, 3, -1, 1),
    Sketcher.Constraint("Symmetric", 6, 3, 9, 3, -1, 1),
    Sketcher.Constraint("Symmetric", 7, 3, 10, 3, -1, 1),
    Sketcher.Constraint("Symmetric", 0, 3, 11, 3, -1, 1),
    Sketcher.Constraint("Symmetric", 1, 3, 12, 3, -1, 1),
    Sketcher.Constraint("Symmetric", 2, 3, 13, 3, -1, 1),
    Sketcher.Constraint("Symmetric", 3, 3, 14, 3, -1, 1),
    Sketcher.Constraint("Symmetric", 4, 3, 15, 3, -1, 1),
    Sketcher.Constraint("Symmetric", 7, 3, 8, 3, -2),
    Sketcher.Constraint("Symmetric", 4, 3, 11, 3, -2),
    Sketcher.Constraint("Symmetric", 3, 3, 12, 3, -2),
    Sketcher.Constraint("PointOnObject", 2, 3, -1),
    Sketcher.Constraint("PointOnObject", 6, 3, -1),
    Sketcher.Constraint("Horizontal", 3, 3, 5, 3),
    Sketcher.Constraint("Diameter", 0, 4.5),
    Sketcher.Constraint("DistanceX", -1, 1, 0, 3, 100.0),
    Sketcher.Constraint("DistanceY", 4, 3, 0, 3, 83.0),
    Sketcher.Constraint("DistanceX", 9, 3, 6, 3, 117.0),
    Sketcher.Constraint("DistanceX", 13, 3, 9, 3, 83.0),
    Sketcher.Constraint("DistanceX", -1, 1, 1, 3, 129.344931),
    Sketcher.Constraint("DistanceY", -1, 1, 1, 3, 29.344931),
    Sketcher.Constraint("DistanceX", -1, 1, 5, 3, 70.655069),
])
sketch6.setExpression("Constraints[29]", "Params.sketch6_diameter")
pocket4 = body.newObject("PartDesign::Pocket", "Pocket003")
pocket4.Profile = sketch6
pocket4.setExpression("Length", "Params.pocket4_length")

doc.recompute()
